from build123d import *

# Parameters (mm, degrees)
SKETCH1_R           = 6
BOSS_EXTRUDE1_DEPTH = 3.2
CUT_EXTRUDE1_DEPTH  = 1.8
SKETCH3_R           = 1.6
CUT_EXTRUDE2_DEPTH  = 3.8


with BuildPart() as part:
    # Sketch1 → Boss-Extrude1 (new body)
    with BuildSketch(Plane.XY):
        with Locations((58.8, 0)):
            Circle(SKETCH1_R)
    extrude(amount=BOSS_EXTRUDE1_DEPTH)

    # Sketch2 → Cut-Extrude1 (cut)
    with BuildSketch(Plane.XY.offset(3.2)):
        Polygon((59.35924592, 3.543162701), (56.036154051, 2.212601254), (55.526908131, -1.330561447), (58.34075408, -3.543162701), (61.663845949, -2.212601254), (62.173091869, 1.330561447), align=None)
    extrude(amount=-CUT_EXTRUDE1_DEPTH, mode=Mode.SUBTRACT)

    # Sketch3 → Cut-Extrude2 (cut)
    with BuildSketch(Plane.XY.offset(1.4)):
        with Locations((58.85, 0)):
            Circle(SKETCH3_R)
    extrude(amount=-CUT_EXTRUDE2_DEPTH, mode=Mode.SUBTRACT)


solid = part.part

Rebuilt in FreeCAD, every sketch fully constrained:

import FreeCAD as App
import Part
import Sketcher

V = App.Vector
Q = App.Units.Quantity

doc = App.newDocument("Part")
body = doc.addObject("PartDesign::Body", "Body")

sketch1 = body.newObject("Sketcher::SketchObject", "Sketch")
sketch1.AttachmentSupport = (doc.getObject("XY_Plane"), [""])
sketch1.MapMode = "FlatFace"
sketch1.addGeometry(Part.Circle(V(59, 0, 0), V(0, 0, 1), 6), False)
sketch1.addConstraint(Sketcher.Constraint("PointOnObject", 0, 3, -1))
sketch1.addConstraint(Sketcher.Constraint("Diameter", 0, Q("12 mm")))
sketch1.addConstraint(Sketcher.Constraint("DistanceX", -1, 1, 0, 3, Q("58.8 mm")))
pad1 = body.newObject("PartDesign::Pad", "Pad")
pad1.Profile = sketch1
pad1.Length = 3.2

sketch2 = body.newObject("Sketcher::SketchObject", "Sketch001")
sketch2.AttachmentSupport = (doc.getObject("XY_Plane"), [""])
sketch2.MapMode = "FlatFace"
sketch2.AttachmentOffset = App.Placement(V(0, 0, 3.2), App.Rotation())
sketch2.addGeometry(Part.LineSegment(V(59.4, 3.5, 0), V(56, 2.2, 0)), False)
sketch2.addGeometry(Part.LineSegment(V(56, 2.2, 0), V(55.5, -1.3, 0)), False)
sketch2.addGeometry(Part.LineSegment(V(55.5, -1.3, 0), V(58.3, -3.5, 0)), False)
sketch2.addGeometry(Part.LineSegment(V(58.3, -3.5, 0), V(61.7, -2.2, 0)), False)
sketch2.addGeometry(Part.LineSegment(V(61.7, -2.2, 0), V(62.2, 1.3, 0)), False)
sketch2.addGeometry(Part.LineSegment(V(62.2, 1.3, 0), V(59.4, 3.5, 0)), False)
sketch2.addConstraint(Sketcher.Constraint("Coincident", 0, 2, 1, 1))
sketch2.addConstraint(Sketcher.Constraint("Coincident", 1, 2, 2, 1))
sketch2.addConstraint(Sketcher.Constraint("Coincident", 2, 2, 3, 1))
sketch2.addConstraint(Sketcher.Constraint("Coincident", 3, 2, 4, 1))
sketch2.addConstraint(Sketcher.Constraint("Coincident", 4, 2, 5, 1))
sketch2.addConstraint(Sketcher.Constraint("Coincident", 5, 2, 0, 1))
sketch2.addConstraint(Sketcher.Constraint("Parallel", 0, 3))
sketch2.addConstraint(Sketcher.Constraint("Parallel", 1, 4))
sketch2.addConstraint(Sketcher.Constraint("Parallel", 2, 5))
sketch2.addConstraint(Sketcher.Constraint("Equal", 0, 1))
sketch2.addConstraint(Sketcher.Constraint("Equal", 1, 2))
sketch2.addConstraint(Sketcher.Constraint("Equal", 2, 3))
sketch2.addConstraint(Sketcher.Constraint("DistanceY", -1, 1, 0, 2, Q("2.212601 mm")))
sketch2.addConstraint(Sketcher.Constraint("DistanceY", 3, 2, -1, 1, Q("2.212601 mm")))
sketch2.addConstraint(Sketcher.Constraint("DistanceY", 2, 2, 1, 2, Q("2.212601 mm")))
sketch2.addConstraint(Sketcher.Constraint("DistanceX", 0, 2, 2, 2, Q("2.3046 mm")))
sketch2.addConstraint(Sketcher.Constraint("Distance", 0, Q("3.579572 mm")))
sketch2.addConstraint(Sketcher.Constraint("DistanceX", -1, 1, 1, 2, Q("55.526908 mm")))
pocket1 = body.newObject("PartDesign::Pocket", "Pocket")
pocket1.Profile = sketch2
pocket1.Length = 1.8

sketch3 = body.newObject("Sketcher::SketchObject", "Sketch002")
sketch3.AttachmentSupport = (doc.getObject("XY_Plane"), [""])
sketch3.MapMode = "FlatFace"
sketch3.AttachmentOffset = App.Placement(V(0, 0, 1.4), App.Rotation())
sketch3.addGeometry(Part.Circle(V(58.9, 0, 0), V(0, 0, 1), 1.6), False)
sketch3.addConstraint(Sketcher.Constraint("PointOnObject", 0, 3, -1))
sketch3.addConstraint(Sketcher.Constraint("Diameter", 0, Q("3.2 mm")))
sketch3.addConstraint(Sketcher.Constraint("DistanceX", -1, 1, 0, 3, Q("58.85 mm")))
pocket2 = body.newObject("PartDesign::Pocket", "Pocket001")
pocket2.Profile = sketch3
pocket2.Length = 3.8

doc.recompute()
